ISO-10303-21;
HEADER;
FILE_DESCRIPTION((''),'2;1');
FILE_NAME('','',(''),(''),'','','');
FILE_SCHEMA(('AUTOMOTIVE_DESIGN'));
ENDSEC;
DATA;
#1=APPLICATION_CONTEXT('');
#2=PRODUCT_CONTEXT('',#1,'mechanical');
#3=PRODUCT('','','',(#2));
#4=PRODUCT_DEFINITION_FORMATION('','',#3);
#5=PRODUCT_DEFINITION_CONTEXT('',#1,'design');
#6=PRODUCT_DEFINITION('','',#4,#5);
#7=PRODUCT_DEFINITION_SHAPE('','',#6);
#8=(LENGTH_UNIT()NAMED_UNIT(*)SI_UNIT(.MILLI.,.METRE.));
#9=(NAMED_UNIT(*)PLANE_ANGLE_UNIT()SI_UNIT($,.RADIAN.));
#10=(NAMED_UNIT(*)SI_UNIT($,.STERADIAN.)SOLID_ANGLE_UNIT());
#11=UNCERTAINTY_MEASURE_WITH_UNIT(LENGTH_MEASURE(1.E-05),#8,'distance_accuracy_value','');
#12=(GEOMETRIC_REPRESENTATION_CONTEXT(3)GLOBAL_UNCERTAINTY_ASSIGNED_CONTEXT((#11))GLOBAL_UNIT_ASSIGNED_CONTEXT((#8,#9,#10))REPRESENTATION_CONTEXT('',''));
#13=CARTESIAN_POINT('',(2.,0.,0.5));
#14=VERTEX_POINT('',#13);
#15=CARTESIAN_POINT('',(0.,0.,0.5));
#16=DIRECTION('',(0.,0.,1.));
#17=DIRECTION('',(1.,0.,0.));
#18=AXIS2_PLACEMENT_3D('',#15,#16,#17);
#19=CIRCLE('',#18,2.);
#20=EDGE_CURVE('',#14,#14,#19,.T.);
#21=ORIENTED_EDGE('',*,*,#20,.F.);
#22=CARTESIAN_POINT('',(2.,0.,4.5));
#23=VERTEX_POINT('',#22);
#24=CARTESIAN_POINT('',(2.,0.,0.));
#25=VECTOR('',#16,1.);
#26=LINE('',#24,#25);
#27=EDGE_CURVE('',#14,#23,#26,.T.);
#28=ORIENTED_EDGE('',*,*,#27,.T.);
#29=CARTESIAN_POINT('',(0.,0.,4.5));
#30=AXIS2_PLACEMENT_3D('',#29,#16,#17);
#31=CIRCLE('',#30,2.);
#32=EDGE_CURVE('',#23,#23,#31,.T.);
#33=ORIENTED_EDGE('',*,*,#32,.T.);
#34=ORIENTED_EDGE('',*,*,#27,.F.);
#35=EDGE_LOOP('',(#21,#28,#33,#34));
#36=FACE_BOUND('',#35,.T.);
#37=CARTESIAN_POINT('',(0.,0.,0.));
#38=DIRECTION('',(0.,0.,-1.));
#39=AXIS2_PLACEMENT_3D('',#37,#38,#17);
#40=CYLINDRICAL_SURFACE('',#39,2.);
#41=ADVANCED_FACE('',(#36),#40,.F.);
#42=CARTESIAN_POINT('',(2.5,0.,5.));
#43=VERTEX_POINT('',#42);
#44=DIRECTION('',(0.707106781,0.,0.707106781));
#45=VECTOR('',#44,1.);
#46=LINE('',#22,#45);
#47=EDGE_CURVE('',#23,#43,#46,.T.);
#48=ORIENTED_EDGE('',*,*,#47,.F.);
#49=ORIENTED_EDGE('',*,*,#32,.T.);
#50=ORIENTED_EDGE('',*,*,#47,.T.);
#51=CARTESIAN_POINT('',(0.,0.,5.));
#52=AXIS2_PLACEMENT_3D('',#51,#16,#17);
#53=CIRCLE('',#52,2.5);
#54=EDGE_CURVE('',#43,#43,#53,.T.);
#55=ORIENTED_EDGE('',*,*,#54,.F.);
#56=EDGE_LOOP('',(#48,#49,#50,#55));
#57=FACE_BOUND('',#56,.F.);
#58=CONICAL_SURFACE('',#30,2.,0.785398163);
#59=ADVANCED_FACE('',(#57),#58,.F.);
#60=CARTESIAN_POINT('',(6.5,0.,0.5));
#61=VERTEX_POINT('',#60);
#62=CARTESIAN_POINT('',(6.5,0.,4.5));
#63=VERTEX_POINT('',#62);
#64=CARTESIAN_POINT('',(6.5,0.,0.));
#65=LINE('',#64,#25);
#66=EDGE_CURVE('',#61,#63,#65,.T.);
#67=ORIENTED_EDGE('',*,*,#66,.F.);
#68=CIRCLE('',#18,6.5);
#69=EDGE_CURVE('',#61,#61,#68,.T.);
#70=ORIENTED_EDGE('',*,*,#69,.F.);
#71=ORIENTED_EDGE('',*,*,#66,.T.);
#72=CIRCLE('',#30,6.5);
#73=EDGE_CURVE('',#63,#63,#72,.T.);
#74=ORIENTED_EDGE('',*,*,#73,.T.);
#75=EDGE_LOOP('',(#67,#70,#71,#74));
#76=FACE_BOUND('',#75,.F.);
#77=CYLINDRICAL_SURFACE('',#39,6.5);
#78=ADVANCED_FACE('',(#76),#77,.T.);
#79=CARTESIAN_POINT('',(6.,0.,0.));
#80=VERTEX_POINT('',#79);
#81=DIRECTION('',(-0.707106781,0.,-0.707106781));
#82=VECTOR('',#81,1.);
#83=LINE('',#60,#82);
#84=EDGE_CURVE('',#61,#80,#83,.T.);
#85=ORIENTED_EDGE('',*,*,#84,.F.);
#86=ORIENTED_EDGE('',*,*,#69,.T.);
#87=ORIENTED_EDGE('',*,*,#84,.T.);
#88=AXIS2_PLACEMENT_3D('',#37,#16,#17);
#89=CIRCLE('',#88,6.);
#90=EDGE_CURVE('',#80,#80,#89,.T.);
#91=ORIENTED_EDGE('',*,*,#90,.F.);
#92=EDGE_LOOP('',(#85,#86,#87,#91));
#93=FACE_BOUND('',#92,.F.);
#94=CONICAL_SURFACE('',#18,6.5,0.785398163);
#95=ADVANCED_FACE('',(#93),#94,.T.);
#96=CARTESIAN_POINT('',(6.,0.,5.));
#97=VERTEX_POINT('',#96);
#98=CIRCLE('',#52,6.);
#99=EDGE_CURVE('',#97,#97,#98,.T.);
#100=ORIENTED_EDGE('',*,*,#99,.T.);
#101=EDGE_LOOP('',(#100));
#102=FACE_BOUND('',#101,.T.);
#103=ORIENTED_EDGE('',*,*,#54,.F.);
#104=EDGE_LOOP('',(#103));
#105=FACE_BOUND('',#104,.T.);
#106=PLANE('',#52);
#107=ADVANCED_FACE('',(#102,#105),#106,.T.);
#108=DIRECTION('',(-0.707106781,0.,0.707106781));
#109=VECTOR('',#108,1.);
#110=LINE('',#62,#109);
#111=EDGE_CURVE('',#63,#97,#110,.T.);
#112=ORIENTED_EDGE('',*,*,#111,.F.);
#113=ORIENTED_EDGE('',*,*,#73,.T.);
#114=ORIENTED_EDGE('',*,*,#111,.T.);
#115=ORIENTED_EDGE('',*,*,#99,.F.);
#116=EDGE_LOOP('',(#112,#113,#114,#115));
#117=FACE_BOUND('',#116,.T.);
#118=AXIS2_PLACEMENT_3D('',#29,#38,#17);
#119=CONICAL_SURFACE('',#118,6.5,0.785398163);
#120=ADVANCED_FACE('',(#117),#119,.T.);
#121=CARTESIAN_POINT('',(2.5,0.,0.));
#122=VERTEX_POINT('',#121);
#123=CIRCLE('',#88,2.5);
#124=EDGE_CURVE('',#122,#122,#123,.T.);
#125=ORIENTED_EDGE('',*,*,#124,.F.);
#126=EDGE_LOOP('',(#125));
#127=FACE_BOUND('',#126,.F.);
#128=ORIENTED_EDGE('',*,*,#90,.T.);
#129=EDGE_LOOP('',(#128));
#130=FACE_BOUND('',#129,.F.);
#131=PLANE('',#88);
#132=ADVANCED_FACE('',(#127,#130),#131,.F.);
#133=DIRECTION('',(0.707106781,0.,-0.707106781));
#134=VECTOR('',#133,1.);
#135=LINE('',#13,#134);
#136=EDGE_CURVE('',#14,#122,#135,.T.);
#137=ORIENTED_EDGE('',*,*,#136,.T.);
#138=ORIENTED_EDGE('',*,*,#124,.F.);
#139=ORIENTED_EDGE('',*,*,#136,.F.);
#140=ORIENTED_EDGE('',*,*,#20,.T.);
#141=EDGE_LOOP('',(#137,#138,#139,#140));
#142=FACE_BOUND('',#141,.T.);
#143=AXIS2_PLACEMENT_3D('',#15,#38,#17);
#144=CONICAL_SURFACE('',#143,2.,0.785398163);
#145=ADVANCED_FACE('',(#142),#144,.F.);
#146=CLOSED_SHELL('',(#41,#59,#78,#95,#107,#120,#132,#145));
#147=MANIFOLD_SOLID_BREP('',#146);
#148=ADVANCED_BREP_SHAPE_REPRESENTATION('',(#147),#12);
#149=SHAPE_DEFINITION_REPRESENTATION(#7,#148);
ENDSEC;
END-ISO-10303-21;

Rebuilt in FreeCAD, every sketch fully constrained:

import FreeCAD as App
import Part
import Sketcher
from FreeCAD import Vector
Q = App.Units.Quantity


def edges_at(feature, points):
    """Names of the edges that pass closest to the given points."""
    edges = feature.Shape.Edges
    near = lambda p: min(range(len(edges)), key=lambda i: edges[i].distToShape(Part.Vertex(*p))[0])
    return sorted({f"Edge{near(p) + 1}" for p in points})

doc = App.newDocument("Part")
body = doc.addObject("PartDesign::Body", "Body")

# Sketch on XY plane
sketch1 = body.newObject("Sketcher::SketchObject", "Sketch")
sketch1.AttachmentSupport = (doc.getObject("XY_Plane"), [""])
sketch1.MapMode = "FlatFace"
sketch1.addGeometry(Part.Circle(Vector(0, 0, 0), Vector(0, 0, 1), 6.5), False)
sketch1.addGeometry(Part.Circle(Vector(0, 0, 0), Vector(0, 0, 1), 2), False)
sketch1.addConstraint(Sketcher.Constraint("Coincident", 0, 3, -1, 1))
sketch1.addConstraint(Sketcher.Constraint("Coincident", 1, 3, -1, 1))
sketch1.addConstraint(Sketcher.Constraint("Diameter", 0, Q("13 mm")))
sketch1.addConstraint(Sketcher.Constraint("Diameter", 1, Q("4 mm")))
pad1 = body.newObject("PartDesign::Pad", "Pad")
pad1.Profile = sketch1
pad1.Length = 5
doc.recompute()

chamfer = body.newObject("PartDesign::Chamfer", "Chamfer")
chamfer.Base = (pad1, edges_at(pad1, [
    (-6.5, 0, 5),
    (-6.5, 0, 0),
    (-2, 0, 5),
    (-2, 0, 0),
]))
chamfer.Size = 0.5

doc.recompute()
